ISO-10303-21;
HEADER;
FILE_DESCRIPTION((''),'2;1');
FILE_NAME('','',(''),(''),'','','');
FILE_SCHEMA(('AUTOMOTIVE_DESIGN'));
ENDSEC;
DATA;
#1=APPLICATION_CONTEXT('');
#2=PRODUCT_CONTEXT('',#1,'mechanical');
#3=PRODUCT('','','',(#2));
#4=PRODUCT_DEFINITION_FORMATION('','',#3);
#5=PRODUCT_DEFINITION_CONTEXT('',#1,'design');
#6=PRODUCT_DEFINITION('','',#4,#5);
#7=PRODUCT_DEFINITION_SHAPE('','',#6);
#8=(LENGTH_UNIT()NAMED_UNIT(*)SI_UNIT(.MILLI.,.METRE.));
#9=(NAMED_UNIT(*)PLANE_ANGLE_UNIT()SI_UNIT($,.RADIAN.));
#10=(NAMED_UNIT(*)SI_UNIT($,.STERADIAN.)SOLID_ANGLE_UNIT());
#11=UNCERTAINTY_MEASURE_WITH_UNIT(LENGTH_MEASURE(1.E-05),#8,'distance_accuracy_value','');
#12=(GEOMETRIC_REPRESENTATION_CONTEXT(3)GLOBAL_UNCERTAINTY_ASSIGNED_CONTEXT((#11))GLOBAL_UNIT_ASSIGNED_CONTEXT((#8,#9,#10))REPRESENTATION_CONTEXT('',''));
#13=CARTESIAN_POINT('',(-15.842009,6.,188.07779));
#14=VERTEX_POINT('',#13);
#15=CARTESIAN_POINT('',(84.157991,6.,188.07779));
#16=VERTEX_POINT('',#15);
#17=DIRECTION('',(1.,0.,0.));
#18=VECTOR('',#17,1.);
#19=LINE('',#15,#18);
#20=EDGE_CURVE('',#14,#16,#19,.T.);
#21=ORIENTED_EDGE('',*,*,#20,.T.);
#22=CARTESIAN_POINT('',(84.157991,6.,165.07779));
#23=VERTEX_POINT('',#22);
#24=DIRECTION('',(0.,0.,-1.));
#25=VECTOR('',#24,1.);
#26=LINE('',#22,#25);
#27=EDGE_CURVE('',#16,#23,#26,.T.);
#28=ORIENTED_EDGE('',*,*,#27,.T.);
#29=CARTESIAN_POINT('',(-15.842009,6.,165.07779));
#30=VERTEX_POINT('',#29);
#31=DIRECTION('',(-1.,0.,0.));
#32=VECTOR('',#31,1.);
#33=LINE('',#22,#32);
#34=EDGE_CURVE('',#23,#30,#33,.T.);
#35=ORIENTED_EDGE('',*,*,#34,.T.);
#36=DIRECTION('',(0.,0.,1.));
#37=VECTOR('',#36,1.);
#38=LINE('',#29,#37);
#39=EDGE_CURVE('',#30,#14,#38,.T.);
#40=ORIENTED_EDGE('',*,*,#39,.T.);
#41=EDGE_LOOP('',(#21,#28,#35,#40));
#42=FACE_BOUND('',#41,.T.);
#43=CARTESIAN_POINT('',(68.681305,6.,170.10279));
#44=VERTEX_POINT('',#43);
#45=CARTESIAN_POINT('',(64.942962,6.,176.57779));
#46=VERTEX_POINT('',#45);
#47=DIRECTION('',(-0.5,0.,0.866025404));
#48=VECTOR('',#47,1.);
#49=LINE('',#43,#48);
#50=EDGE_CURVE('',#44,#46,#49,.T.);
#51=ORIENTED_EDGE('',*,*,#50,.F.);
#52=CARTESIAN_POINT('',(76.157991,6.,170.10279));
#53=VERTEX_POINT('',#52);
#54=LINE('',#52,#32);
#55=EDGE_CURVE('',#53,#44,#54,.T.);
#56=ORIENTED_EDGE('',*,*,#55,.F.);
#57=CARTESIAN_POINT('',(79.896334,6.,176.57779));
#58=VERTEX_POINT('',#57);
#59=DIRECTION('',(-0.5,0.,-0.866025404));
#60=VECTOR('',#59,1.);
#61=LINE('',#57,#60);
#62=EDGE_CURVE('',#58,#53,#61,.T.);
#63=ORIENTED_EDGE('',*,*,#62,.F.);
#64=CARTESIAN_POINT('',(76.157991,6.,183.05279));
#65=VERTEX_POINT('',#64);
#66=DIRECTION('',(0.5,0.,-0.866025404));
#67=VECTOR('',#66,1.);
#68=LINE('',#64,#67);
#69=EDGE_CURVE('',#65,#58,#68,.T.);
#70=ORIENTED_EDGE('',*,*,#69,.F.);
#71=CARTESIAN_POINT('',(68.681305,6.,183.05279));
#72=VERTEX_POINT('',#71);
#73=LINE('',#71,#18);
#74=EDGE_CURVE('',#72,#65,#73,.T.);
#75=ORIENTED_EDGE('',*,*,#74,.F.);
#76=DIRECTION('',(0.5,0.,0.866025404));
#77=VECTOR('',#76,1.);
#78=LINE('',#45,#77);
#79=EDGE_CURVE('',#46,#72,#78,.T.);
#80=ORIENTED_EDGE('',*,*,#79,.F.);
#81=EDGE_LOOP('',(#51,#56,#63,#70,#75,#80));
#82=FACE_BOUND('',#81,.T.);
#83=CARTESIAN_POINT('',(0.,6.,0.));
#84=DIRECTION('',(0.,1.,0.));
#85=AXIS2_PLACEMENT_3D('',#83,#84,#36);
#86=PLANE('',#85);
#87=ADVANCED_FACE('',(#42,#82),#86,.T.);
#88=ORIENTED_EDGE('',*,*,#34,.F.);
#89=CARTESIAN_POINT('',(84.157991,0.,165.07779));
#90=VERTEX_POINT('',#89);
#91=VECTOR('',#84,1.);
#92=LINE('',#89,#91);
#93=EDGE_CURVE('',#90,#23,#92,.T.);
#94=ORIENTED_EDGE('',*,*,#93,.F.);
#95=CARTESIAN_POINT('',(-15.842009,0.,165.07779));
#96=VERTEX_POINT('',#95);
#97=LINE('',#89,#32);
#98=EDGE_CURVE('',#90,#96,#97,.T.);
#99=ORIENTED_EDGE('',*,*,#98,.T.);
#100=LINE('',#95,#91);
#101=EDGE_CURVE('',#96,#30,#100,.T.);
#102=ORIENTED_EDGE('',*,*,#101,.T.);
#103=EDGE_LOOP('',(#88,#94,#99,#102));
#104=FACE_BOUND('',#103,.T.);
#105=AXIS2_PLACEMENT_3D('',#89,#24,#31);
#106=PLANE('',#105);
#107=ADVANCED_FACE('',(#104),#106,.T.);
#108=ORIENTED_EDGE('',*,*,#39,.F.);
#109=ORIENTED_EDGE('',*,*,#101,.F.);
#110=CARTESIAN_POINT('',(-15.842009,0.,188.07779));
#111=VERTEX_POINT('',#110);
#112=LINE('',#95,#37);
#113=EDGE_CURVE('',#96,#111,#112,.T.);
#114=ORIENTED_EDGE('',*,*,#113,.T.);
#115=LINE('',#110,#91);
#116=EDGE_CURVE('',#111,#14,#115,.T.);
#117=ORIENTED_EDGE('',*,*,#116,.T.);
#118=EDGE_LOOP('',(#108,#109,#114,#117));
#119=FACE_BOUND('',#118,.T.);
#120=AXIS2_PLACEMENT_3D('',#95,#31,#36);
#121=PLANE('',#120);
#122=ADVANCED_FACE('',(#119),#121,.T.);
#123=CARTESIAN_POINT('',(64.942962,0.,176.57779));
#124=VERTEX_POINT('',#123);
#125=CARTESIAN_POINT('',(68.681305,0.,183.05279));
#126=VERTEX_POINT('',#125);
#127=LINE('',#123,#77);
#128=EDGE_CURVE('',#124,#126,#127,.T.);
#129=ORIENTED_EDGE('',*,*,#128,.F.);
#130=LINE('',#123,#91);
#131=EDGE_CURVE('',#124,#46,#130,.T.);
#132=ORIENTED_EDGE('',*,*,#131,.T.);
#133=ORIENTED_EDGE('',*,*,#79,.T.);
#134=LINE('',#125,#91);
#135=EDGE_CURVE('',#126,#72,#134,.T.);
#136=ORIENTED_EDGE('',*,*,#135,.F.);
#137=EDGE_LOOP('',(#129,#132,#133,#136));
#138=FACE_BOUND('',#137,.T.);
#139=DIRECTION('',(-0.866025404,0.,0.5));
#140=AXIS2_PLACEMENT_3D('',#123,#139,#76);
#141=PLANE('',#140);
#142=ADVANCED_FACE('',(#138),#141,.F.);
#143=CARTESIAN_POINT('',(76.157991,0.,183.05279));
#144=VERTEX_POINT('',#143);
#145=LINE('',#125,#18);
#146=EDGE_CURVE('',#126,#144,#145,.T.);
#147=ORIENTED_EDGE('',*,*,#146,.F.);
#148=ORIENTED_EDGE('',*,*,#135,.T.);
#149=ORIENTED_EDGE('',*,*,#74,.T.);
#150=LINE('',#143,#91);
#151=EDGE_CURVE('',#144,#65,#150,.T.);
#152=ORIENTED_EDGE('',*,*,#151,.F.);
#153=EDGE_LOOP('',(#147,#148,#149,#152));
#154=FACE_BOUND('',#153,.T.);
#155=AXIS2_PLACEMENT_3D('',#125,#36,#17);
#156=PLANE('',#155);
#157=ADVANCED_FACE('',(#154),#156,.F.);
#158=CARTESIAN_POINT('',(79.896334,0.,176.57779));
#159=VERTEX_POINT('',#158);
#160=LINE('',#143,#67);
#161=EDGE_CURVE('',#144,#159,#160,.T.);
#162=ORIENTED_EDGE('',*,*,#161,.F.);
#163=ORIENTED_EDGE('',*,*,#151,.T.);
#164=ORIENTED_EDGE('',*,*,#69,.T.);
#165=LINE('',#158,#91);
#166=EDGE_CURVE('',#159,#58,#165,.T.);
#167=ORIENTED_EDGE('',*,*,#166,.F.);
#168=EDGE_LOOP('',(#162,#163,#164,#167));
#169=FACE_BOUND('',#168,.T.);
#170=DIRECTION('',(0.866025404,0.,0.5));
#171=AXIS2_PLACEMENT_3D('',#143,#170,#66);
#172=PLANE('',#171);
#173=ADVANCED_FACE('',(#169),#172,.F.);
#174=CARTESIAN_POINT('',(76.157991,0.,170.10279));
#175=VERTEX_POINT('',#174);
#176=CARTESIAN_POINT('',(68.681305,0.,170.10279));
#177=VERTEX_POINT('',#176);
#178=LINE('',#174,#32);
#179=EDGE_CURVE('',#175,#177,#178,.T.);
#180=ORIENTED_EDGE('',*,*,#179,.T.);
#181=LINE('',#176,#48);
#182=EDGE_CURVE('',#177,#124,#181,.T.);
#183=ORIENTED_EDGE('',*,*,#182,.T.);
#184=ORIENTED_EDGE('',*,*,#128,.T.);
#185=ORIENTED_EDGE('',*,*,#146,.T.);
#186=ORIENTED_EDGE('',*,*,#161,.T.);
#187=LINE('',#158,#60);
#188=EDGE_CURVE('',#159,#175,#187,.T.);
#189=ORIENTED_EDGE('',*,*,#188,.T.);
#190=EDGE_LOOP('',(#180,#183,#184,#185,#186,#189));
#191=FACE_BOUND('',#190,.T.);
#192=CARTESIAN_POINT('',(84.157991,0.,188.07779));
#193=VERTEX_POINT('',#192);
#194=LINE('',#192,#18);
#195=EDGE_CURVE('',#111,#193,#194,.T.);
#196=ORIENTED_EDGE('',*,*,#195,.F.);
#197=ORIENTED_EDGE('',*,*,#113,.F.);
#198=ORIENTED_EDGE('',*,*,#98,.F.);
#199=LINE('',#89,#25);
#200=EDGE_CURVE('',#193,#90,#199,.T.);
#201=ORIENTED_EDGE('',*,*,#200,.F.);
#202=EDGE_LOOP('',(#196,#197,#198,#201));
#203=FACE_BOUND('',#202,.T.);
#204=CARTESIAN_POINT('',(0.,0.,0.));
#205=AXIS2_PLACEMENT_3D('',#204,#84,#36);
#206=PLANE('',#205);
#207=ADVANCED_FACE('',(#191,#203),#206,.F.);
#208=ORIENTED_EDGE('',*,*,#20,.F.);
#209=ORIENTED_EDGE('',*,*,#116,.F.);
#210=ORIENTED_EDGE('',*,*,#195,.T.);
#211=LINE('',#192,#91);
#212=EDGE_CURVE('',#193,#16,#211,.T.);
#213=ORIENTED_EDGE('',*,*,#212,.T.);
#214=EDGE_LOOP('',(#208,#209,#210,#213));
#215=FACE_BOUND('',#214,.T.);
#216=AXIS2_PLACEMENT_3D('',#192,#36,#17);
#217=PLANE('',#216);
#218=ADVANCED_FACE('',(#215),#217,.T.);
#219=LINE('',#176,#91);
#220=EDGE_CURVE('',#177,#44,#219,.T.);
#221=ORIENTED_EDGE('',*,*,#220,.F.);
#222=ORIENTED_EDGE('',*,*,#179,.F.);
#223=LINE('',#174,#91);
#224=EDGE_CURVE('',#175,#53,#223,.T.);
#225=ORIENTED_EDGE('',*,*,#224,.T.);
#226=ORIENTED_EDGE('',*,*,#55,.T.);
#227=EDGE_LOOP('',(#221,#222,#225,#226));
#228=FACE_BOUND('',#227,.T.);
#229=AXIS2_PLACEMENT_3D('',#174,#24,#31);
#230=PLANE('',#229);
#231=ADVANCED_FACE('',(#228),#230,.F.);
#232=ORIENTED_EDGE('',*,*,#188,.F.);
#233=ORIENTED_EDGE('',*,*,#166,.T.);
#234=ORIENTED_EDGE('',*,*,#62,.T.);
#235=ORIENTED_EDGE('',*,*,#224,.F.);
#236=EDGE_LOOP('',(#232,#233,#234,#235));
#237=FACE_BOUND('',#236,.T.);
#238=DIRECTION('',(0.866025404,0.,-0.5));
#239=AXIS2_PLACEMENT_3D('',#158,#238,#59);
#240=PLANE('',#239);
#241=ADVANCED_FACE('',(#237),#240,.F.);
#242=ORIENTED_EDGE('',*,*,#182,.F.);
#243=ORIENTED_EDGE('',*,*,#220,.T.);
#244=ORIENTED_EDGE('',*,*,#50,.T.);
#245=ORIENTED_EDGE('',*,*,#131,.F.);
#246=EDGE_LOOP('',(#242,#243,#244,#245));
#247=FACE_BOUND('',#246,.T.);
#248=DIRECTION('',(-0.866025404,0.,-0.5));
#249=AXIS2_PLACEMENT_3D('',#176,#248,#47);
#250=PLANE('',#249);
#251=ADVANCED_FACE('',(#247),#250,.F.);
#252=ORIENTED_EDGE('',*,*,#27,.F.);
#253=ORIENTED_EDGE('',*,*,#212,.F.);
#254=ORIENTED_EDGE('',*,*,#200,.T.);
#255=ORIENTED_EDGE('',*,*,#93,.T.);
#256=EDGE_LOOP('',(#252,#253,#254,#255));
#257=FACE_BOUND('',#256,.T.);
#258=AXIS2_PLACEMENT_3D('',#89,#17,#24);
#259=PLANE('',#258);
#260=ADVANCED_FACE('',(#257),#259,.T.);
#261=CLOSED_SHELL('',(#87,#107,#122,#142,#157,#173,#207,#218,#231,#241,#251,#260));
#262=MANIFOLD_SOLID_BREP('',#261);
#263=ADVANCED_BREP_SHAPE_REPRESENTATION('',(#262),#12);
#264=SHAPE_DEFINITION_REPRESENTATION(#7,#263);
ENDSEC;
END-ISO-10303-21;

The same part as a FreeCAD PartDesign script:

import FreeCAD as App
import Part
import Sketcher

V = App.Vector
Q = App.Units.Quantity


def add_polygon(sketch, points):
    """Adds a closed chain of lines whose ends are joined by coincident constraints."""
    first, n = sketch.GeometryCount, len(points)
    for a, b in zip(points, points[1:] + points[:1]):
        sketch.addGeometry(Part.LineSegment(App.Vector(*a, 0), App.Vector(*b, 0)), False)
    for i in range(n):
        sketch.addConstraint(Sketcher.Constraint("Coincident", first + i, 2, first + (i + 1) % n, 1))

doc = App.newDocument("Part")
params = doc.addObject("Spreadsheet::Sheet", "Params")
for row, (alias, value) in enumerate([
    ("sketch1_width", "100 mm"),
    ("sketch1_height", "23 mm"),
    ("pad1_length", "6 mm"),
    ("pocket1_length", "6 mm"),
], start=1):
    params.set(f"A{row}", alias)
    params.set(f"B{row}", "=" + value)
    params.setAlias(f"B{row}", alias)

body = doc.addObject("PartDesign::Body", "Body")

sketch1 = body.newObject("Sketcher::SketchObject", "Sketch")
sketch1.AttachmentSupport = (doc.getObject("XZ_Plane"), [""])
sketch1.MapMode = "FlatFace"
sketch1.AttachmentOffset = App.Placement(V(0, 0, -6), App.Rotation())
add_polygon(sketch1, [(-16, 165), (-16, 188), (84, 188), (84, 165)])
sketch1.addConstraint([
    Sketcher.Constraint("Vertical", 0),
    Sketcher.Constraint("Horizontal", 1),
    Sketcher.Constraint("Vertical", 2),
    Sketcher.Constraint("Horizontal", 3),
    Sketcher.Constraint("DistanceX", 1, 1, 1, 2, Q("100 mm")),
    Sketcher.Constraint("DistanceY", 0, 1, 0, 2, Q("23 mm")),
    Sketcher.Constraint("DistanceX", 0, 2, -1, 1, Q("15.842009 mm")),
    Sketcher.Constraint("DistanceY", -1, 1, 0, 2, Q("188.07779 mm")),
])
sketch1.setExpression("Constraints[8]", "Params.sketch1_width")
sketch1.setExpression("Constraints[9]", "Params.sketch1_height")
pad1 = body.newObject("PartDesign::Pad", "Pad")
pad1.Profile = sketch1
pad1.setExpression("Length", "Params.pad1_length")

sketch2 = body.newObject("Sketcher::SketchObject", "Sketch001")
sketch2.AttachmentSupport = (doc.getObject("XZ_Plane"), [""])
sketch2.MapMode = "FlatFace"
sketch2.AttachmentOffset = App.Placement(V(0, 0, -6), App.Rotation())
add_polygon(sketch2, [(65, 177), (69, 183), (76, 183), (80, 177), (76, 170), (69, 170)])
sketch2.addConstraint([
    Sketcher.Constraint("Horizontal", 1),
    Sketcher.Constraint("Horizontal", 4),
    Sketcher.Constraint("Parallel", 0, 3),
    Sketcher.Constraint("Parallel", 2, 5),
    Sketcher.Constraint("Horizontal", 2, 2, 5, 2),
    Sketcher.Constraint("Vertical", 1, 2, 3, 2),
    Sketcher.Constraint("Vertical", 0, 2, 4, 2),
    Sketcher.Constraint("Angle", 0, Q("60 deg")),
    Sketcher.Constraint("DistanceY", 3, 2, 1, 2, Q("12.95 mm")),
    Sketcher.Constraint("DistanceX", 1, 1, 1, 2, Q("7.476686 mm")),
    Sketcher.Constraint("DistanceY", -1, 1, 0, 2, Q("183.05279 mm")),
    Sketcher.Constraint("DistanceX", -1, 1, 1, 2, Q("76.157991 mm")),
])
pocket1 = body.newObject("PartDesign::Pocket", "Pocket")
pocket1.Profile = sketch2
pocket1.setExpression("Length", "Params.pocket1_length")
pocket1.Reversed = True

doc.recompute()
